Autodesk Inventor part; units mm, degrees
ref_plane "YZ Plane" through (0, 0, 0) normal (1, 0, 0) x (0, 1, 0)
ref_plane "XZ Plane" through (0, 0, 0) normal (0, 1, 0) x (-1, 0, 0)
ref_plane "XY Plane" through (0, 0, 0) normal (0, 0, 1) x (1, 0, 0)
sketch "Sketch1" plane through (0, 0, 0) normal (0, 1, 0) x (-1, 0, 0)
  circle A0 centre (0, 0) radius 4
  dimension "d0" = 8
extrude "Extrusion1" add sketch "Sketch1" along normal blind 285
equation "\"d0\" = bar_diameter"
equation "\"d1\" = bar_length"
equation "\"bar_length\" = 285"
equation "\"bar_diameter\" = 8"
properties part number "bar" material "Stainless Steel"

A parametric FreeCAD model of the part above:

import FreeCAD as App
import Part
import Sketcher

V = App.Vector
Q = App.Units.Quantity

doc = App.newDocument("Part")
body = doc.addObject("PartDesign::Body", "Body")

sketch1 = doc.addObject("Sketcher::SketchObject", "Sketch")
body.addObject(sketch1)
sketch1.AttachmentSupport = (doc.XZ_Plane, [""])
sketch1.MapMode = "FlatFace"
sketch1.addGeometry(Part.Circle(V(0, 0, 0), V(0, 0, 1), 4), False)
sketch1.addConstraint([
    Sketcher.Constraint("Coincident", 0, 3, -1, 1),
    Sketcher.Constraint("Diameter", 0, Q("8 mm")),
])
pad1 = doc.addObject("PartDesign::Pad", "Pad")
body.addObject(pad1)
pad1.Profile = sketch1
pad1.Length = 285
pad1.Reversed = True

doc.recompute()
